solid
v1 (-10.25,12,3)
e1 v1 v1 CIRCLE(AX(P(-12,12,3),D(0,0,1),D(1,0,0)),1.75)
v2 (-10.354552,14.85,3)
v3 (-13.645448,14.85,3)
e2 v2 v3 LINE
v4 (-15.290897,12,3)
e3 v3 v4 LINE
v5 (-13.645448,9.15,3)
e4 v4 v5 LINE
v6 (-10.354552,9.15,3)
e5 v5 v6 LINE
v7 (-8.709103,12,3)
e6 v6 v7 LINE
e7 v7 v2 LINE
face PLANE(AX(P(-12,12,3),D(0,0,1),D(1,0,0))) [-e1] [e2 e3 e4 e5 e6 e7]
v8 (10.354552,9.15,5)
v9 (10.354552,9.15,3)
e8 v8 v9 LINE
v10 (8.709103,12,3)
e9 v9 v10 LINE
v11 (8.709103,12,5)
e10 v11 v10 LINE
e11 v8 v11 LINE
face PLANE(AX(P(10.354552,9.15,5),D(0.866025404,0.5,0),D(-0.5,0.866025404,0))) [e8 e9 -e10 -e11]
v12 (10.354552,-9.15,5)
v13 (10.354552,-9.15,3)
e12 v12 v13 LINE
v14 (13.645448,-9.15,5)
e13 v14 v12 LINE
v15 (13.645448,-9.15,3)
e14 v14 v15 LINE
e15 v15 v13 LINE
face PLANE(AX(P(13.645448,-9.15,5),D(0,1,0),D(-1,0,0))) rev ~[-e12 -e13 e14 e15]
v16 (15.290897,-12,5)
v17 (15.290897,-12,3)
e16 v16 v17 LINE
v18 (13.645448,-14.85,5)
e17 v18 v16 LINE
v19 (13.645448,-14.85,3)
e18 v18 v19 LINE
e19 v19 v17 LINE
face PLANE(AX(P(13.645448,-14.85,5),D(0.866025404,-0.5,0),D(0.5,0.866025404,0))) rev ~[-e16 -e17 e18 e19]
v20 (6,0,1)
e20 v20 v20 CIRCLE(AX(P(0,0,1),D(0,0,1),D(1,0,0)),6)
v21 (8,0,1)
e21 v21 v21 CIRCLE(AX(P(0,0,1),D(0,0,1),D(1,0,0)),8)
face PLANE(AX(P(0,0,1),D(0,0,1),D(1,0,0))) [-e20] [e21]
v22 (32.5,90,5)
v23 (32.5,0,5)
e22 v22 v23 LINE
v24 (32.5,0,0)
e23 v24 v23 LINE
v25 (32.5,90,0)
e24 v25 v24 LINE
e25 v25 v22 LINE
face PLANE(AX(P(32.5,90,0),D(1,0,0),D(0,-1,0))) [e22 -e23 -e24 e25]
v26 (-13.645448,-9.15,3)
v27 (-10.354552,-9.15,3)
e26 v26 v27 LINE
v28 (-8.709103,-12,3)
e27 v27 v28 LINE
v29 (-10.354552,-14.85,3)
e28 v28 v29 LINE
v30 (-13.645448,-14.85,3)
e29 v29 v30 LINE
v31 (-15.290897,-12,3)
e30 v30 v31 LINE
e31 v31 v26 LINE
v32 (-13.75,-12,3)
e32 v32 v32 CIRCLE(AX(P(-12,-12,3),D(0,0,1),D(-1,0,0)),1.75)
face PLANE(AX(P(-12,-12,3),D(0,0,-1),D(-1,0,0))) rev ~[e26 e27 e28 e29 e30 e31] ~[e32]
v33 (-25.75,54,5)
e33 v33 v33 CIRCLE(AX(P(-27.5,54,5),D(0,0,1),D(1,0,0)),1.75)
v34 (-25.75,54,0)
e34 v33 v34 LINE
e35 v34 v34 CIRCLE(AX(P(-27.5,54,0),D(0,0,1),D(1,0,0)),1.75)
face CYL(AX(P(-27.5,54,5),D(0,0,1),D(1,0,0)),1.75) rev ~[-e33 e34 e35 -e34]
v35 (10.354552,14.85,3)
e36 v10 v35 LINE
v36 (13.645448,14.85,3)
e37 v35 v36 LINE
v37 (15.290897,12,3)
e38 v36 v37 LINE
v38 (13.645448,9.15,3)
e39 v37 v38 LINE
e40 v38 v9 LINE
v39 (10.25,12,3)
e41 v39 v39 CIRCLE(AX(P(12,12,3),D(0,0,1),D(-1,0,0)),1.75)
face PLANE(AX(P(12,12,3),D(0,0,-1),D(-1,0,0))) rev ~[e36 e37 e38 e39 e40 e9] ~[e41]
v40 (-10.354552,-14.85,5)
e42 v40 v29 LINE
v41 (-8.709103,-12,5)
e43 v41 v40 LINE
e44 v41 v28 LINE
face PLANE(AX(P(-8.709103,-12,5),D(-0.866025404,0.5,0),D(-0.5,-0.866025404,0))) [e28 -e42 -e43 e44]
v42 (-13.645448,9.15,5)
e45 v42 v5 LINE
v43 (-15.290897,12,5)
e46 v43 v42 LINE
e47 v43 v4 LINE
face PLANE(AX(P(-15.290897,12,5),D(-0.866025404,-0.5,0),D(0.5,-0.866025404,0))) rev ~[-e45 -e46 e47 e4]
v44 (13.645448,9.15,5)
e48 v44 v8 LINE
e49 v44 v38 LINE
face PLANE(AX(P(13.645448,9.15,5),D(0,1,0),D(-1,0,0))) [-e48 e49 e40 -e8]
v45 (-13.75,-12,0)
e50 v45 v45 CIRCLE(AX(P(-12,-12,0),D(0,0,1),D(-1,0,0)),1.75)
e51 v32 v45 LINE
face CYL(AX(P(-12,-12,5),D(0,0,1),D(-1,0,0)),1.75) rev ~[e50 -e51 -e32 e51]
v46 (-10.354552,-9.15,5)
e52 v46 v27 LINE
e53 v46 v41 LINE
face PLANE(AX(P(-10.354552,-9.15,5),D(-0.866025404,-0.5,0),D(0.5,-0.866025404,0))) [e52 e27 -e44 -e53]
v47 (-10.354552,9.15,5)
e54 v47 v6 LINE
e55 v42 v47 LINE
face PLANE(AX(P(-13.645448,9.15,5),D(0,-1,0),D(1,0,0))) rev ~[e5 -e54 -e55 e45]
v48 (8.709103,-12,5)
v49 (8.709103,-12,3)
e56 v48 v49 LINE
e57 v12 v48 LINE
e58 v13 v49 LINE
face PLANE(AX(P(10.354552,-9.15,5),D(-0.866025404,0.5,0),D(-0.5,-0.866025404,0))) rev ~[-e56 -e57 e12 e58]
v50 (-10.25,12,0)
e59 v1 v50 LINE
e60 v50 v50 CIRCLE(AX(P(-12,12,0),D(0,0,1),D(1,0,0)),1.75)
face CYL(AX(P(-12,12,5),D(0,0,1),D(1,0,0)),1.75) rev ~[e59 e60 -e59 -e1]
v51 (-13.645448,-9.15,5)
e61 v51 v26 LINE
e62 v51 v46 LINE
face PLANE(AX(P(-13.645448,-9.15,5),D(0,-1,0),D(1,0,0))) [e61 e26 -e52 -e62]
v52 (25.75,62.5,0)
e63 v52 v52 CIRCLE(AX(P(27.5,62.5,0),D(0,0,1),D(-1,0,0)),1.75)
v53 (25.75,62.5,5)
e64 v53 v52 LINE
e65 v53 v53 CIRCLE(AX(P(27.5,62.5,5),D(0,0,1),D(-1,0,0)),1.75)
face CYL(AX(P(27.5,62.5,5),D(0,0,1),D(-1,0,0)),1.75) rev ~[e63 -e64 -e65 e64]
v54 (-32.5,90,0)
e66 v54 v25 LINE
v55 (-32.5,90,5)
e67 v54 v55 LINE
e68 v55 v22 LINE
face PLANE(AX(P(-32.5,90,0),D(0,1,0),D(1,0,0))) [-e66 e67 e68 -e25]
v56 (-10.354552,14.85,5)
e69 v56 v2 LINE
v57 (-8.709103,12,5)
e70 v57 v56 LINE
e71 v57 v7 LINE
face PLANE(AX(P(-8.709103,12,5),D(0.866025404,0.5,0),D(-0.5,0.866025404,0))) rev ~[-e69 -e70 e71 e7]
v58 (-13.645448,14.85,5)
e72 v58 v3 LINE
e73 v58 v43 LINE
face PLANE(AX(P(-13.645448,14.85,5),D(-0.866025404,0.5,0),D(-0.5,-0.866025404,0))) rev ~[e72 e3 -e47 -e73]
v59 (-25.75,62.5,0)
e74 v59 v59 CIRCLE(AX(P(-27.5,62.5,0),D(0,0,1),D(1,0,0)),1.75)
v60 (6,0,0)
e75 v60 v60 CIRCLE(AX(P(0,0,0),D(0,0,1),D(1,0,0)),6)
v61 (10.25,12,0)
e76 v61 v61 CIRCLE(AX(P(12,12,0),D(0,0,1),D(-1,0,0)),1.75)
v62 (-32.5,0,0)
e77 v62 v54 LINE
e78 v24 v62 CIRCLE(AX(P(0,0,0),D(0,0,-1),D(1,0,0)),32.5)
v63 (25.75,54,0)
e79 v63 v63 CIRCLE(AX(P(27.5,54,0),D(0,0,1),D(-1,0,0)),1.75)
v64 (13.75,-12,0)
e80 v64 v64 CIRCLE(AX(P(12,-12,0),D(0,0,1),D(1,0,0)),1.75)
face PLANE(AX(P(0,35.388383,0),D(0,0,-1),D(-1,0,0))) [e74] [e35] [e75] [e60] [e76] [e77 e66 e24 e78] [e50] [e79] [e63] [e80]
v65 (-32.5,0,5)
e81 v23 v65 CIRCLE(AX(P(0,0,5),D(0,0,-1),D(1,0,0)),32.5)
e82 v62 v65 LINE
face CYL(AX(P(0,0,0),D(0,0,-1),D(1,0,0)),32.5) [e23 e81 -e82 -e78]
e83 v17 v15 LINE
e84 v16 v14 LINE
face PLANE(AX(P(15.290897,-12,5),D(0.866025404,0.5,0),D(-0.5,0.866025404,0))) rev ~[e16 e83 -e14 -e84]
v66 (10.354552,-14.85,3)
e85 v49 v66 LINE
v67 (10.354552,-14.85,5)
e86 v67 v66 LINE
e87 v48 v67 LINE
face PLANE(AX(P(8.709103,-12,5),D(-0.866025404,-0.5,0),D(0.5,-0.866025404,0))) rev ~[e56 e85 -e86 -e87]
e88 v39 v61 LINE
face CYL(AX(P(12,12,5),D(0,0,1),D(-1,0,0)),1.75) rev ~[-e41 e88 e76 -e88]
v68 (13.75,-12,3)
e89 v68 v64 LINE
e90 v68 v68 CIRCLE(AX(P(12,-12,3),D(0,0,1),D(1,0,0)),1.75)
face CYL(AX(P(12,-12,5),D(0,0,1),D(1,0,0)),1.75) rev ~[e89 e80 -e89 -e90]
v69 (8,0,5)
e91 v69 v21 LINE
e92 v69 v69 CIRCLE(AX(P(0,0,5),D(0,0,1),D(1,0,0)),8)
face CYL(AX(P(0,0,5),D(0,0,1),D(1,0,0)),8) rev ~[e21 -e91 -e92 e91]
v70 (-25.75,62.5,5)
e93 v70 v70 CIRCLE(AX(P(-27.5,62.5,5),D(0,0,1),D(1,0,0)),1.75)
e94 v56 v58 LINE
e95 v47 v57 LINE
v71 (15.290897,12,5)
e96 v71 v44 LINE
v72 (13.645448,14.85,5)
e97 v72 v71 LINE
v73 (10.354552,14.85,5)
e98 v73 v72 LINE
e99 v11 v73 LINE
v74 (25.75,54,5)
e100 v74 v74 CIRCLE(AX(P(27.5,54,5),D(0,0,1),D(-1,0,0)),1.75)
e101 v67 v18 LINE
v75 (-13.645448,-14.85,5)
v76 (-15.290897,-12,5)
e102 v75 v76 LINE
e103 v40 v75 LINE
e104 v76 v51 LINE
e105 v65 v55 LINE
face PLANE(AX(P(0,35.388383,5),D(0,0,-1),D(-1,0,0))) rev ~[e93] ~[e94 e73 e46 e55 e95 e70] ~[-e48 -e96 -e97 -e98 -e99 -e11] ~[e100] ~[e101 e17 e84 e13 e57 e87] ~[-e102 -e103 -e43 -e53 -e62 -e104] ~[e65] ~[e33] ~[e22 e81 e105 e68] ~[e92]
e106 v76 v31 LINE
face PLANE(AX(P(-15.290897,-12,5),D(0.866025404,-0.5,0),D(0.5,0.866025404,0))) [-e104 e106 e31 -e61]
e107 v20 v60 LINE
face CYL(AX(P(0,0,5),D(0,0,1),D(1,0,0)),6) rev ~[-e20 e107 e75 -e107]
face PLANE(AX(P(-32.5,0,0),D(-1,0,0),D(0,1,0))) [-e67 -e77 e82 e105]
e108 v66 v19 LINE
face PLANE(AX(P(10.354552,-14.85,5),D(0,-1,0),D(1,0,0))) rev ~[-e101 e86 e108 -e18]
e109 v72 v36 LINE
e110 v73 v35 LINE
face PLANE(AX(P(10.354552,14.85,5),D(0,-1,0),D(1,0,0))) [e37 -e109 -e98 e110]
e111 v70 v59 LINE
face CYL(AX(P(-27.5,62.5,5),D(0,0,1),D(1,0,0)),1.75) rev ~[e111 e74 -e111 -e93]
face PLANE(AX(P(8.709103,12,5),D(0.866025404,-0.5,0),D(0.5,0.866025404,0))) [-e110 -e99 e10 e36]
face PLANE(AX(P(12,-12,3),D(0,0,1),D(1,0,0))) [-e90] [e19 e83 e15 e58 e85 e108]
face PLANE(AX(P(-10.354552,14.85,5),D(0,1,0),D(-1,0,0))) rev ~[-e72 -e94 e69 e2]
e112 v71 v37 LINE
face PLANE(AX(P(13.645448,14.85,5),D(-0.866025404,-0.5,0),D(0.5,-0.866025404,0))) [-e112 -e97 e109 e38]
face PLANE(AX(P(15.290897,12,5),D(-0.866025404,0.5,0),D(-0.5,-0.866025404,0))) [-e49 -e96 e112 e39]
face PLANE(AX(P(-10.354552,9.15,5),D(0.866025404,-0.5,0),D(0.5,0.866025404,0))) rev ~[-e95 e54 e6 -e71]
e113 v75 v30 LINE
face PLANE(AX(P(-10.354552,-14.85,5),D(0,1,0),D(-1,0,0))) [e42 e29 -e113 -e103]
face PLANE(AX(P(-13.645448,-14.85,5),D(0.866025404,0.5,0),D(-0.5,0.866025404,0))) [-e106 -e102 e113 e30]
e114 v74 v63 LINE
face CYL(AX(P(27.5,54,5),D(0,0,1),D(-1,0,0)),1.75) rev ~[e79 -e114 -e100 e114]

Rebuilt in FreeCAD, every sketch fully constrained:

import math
import FreeCAD as App
import Part
import Sketcher
from FreeCAD import Vector
Q = App.Units.Quantity

doc = App.newDocument("Part")
body = doc.addObject("PartDesign::Body", "Body")

sketch1 = doc.addObject("Sketcher::SketchObject", "Sketch")
body.addObject(sketch1)
sketch1.AttachmentSupport = (doc.XY_Plane, [""])
sketch1.MapMode = "FlatFace"
sketch1.addGeometry([
    Part.LineSegment(Vector(-32, 90, 0), Vector(-32, 0, 0)),
    Part.ArcOfCircle(Part.Circle(Vector(0, 0, 0), Vector(0, 0, 1), 32), math.radians(180), math.radians(360)),
    Part.LineSegment(Vector(32, 0, 0), Vector(32, 90, 0)),
    Part.LineSegment(Vector(32, 90, 0), Vector(-32, 90, 0)),
], False)
sketch1.addConstraint([
    Sketcher.Constraint("Tangent", 0, 2, 1, 1),
    Sketcher.Constraint("Tangent", 1, 2, 2, 1),
    Sketcher.Constraint("Coincident", 2, 2, 3, 1),
    Sketcher.Constraint("Coincident", 3, 2, 0, 1),
    Sketcher.Constraint("Vertical", 0),
    Sketcher.Constraint("Vertical", 2),
    Sketcher.Constraint("Horizontal", 3),
    Sketcher.Constraint("Coincident", 1, 3, -1, 1),
    Sketcher.Constraint("Radius", 1, Q("32.5 mm")),
    Sketcher.Constraint("DistanceY", 0, 2, 0, 1, Q("90 mm")),
])
pad1 = doc.addObject("PartDesign::Pad", "Pad")
body.addObject(pad1)
pad1.Profile = sketch1
pad1.Length = 5

sketch2 = doc.addObject("Sketcher::SketchObject", "Sketch001")
body.addObject(sketch2)
sketch2.AttachmentSupport = (doc.XY_Plane, [""])
sketch2.MapMode = "FlatFace"
sketch2.AttachmentOffset = App.Placement(Vector(0, 0, 5), App.Rotation())
sketch2.addGeometry(Part.Circle(Vector(0, 0, 0), Vector(0, 0, 1), 6), False)
sketch2.addConstraint([
    Sketcher.Constraint("Coincident", 0, 3, -1, 1),
    Sketcher.Constraint("Diameter", 0, Q("12 mm")),
])
pocket1 = doc.addObject("PartDesign::Pocket", "Pocket")
body.addObject(pocket1)
pocket1.Profile = sketch2
pocket1.Type = "ThroughAll"

sketch3 = doc.addObject("Sketcher::SketchObject", "Sketch002")
body.addObject(sketch3)
sketch3.AttachmentSupport = (doc.XY_Plane, [""])
sketch3.MapMode = "FlatFace"
sketch3.AttachmentOffset = App.Placement(Vector(0, 0, 5), App.Rotation())
sketch3.addGeometry(Part.Circle(Vector(0, 0, 0), Vector(0, 0, 1), 8), False)
sketch3.addConstraint([
    Sketcher.Constraint("Coincident", 0, 3, -1, 1),
    Sketcher.Constraint("Diameter", 0, Q("16 mm")),
])
pocket2 = doc.addObject("PartDesign::Pocket", "Pocket001")
body.addObject(pocket2)
pocket2.Profile = sketch3
pocket2.Length = 4

sketch4 = doc.addObject("Sketcher::SketchObject", "Sketch003")
body.addObject(sketch4)
sketch4.AttachmentSupport = (doc.XY_Plane, [""])
sketch4.MapMode = "FlatFace"
sketch4.AttachmentOffset = App.Placement(Vector(0, 0, 5), App.Rotation())
sketch4.addGeometry([
    Part.Circle(Vector(-12, 12, 0), Vector(0, 0, 1), 1.8),
    Part.Circle(Vector(12, 12, 0), Vector(0, 0, 1), 1.8),
    Part.Circle(Vector(12, -12, 0), Vector(0, 0, 1), 1.8),
    Part.Circle(Vector(-12, -12, 0), Vector(0, 0, 1), 1.8),
], False)
sketch4.addConstraint([
    Sketcher.Constraint("Equal", 0, 1),
    Sketcher.Constraint("Equal", 1, 2),
    Sketcher.Constraint("Equal", 2, 3),
    Sketcher.Constraint("Symmetric", 0, 3, 2, 3, -1, 1),
    Sketcher.Constraint("Symmetric", 1, 3, 3, 3, -1, 1),
    Sketcher.Constraint("Symmetric", 0, 3, 1, 3, -2),
    Sketcher.Constraint("Diameter", 0, Q("3.5 mm")),
    Sketcher.Constraint("DistanceX", 0, 3, -1, 1, Q("12 mm")),
    Sketcher.Constraint("DistanceY", -1, 1, 0, 3, Q("12 mm")),
])
pocket3 = doc.addObject("PartDesign::Pocket", "Pocket002")
body.addObject(pocket3)
pocket3.Profile = sketch4
pocket3.Type = "ThroughAll"

sketch5 = doc.addObject("Sketcher::SketchObject", "Sketch004")
body.addObject(sketch5)
sketch5.AttachmentSupport = (doc.XY_Plane, [""])
sketch5.MapMode = "FlatFace"
sketch5.AttachmentOffset = App.Placement(Vector(0, 0, 5), App.Rotation())
sketch5.addGeometry([
    Part.LineSegment(Vector(-8.7, 12, 0), Vector(-10.4, 14.8, 0)),
    Part.LineSegment(Vector(-10.4, 14.8, 0), Vector(-13.6, 14.8, 0)),
    Part.LineSegment(Vector(-13.6, 14.8, 0), Vector(-15.3, 12, 0)),
    Part.LineSegment(Vector(-15.3, 12, 0), Vector(-13.6, 9.2, 0)),
    Part.LineSegment(Vector(-13.6, 9.2, 0), Vector(-10.4, 9.2, 0)),
    Part.LineSegment(Vector(-10.4, 9.2, 0), Vector(-8.7, 12, 0)),
    Part.LineSegment(Vector(8.7, 12, 0), Vector(10.4, 9.2, 0)),
    Part.LineSegment(Vector(10.4, 9.2, 0), Vector(13.6, 9.2, 0)),
    Part.LineSegment(Vector(13.6, 9.2, 0), Vector(15.3, 12, 0)),
    Part.LineSegment(Vector(15.3, 12, 0), Vector(13.6, 14.8, 0)),
    Part.LineSegment(Vector(13.6, 14.8, 0), Vector(10.4, 14.8, 0)),
    Part.LineSegment(Vector(10.4, 14.8, 0), Vector(8.7, 12, 0)),
    Part.LineSegment(Vector(8.7, -12, 0), Vector(10.4, -14.8, 0)),
    Part.LineSegment(Vector(10.4, -14.8, 0), Vector(13.6, -14.8, 0)),
    Part.LineSegment(Vector(13.6, -14.8, 0), Vector(15.3, -12, 0)),
    Part.LineSegment(Vector(15.3, -12, 0), Vector(13.6, -9.2, 0)),
    Part.LineSegment(Vector(13.6, -9.2, 0), Vector(10.4, -9.2, 0)),
    Part.LineSegment(Vector(10.4, -9.2, 0), Vector(8.7, -12, 0)),
    Part.LineSegment(Vector(-8.7, -12, 0), Vector(-10.4, -9.2, 0)),
    Part.LineSegment(Vector(-10.4, -9.2, 0), Vector(-13.6, -9.2, 0)),
    Part.LineSegment(Vector(-13.6, -9.2, 0), Vector(-15.3, -12, 0)),
    Part.LineSegment(Vector(-15.3, -12, 0), Vector(-13.6, -14.8, 0)),
    Part.LineSegment(Vector(-13.6, -14.8, 0), Vector(-10.4, -14.8, 0)),
    Part.LineSegment(Vector(-10.4, -14.8, 0), Vector(-8.7, -12, 0)),
], False)
sketch5.addConstraint([
    Sketcher.Constraint("Coincident", 0, 2, 1, 1),
    Sketcher.Constraint("Coincident", 1, 2, 2, 1),
    Sketcher.Constraint("Coincident", 2, 2, 3, 1),
    Sketcher.Constraint("Coincident", 3, 2, 4, 1),
    Sketcher.Constraint("Coincident", 4, 2, 5, 1),
    Sketcher.Constraint("Coincident", 5, 2, 0, 1),
    Sketcher.Constraint("Coincident", 6, 2, 7, 1),
    Sketcher.Constraint("Coincident", 7, 2, 8, 1),
    Sketcher.Constraint("Coincident", 8, 2, 9, 1),
    Sketcher.Constraint("Coincident", 9, 2, 10, 1),
    Sketcher.Constraint("Coincident", 10, 2, 11, 1),
    Sketcher.Constraint("Coincident", 11, 2, 6, 1),
    Sketcher.Constraint("Coincident", 12, 2, 13, 1),
    Sketcher.Constraint("Coincident", 13, 2, 14, 1),
    Sketcher.Constraint("Coincident", 14, 2, 15, 1),
    Sketcher.Constraint("Coincident", 15, 2, 16, 1),
    Sketcher.Constraint("Coincident", 16, 2, 17, 1),
    Sketcher.Constraint("Coincident", 17, 2, 12, 1),
    Sketcher.Constraint("Coincident", 18, 2, 19, 1),
    Sketcher.Constraint("Coincident", 19, 2, 20, 1),
    Sketcher.Constraint("Coincident", 20, 2, 21, 1),
    Sketcher.Constraint("Coincident", 21, 2, 22, 1),
    Sketcher.Constraint("Coincident", 22, 2, 23, 1),
    Sketcher.Constraint("Coincident", 23, 2, 18, 1),
    Sketcher.Constraint("Horizontal", 1),
    Sketcher.Constraint("Horizontal", 4),
    Sketcher.Constraint("Horizontal", 7),
    Sketcher.Constraint("Horizontal", 10),
    Sketcher.Constraint("Horizontal", 13),
    Sketcher.Constraint("Horizontal", 16),
    Sketcher.Constraint("Horizontal", 19),
    Sketcher.Constraint("Horizontal", 22),
    Sketcher.Constraint("Symmetric", 0, 2, 12, 2, -1, 1),
    Sketcher.Constraint("Symmetric", 2, 2, 14, 2, -1, 1),
    Sketcher.Constraint("Symmetric", 3, 2, 15, 2, -1, 1),
    Sketcher.Constraint("Symmetric", 5, 2, 17, 2, -1, 1),
    Sketcher.Constraint("Symmetric", 6, 2, 18, 2, -1, 1),
    Sketcher.Constraint("Symmetric", 8, 2, 20, 2, -1, 1),
    Sketcher.Constraint("Symmetric", 9, 2, 21, 2, -1, 1),
    Sketcher.Constraint("Symmetric", 11, 2, 23, 2, -1, 1),
    Sketcher.Constraint("Symmetric", 4, 2, 6, 2, -2),
    Sketcher.Constraint("Symmetric", 2, 2, 8, 2, -2),
    Sketcher.Constraint("Symmetric", 1, 2, 9, 2, -2),
    Sketcher.Constraint("Symmetric", 5, 2, 11, 2, -2),
    Sketcher.Constraint("Parallel", 0, 3),
    Sketcher.Constraint("Parallel", 2, 5),
    Sketcher.Constraint("Parallel", 3, 6),
    Sketcher.Constraint("Parallel", 5, 8),
    Sketcher.Constraint("Parallel", 8, 11),
    Sketcher.Constraint("Parallel", 11, 14),
    Sketcher.Constraint("Parallel", 14, 17),
    Sketcher.Constraint("Parallel", 17, 20),
    Sketcher.Constraint("Parallel", 20, 23),
    Sketcher.Constraint("Horizontal", 2, 2, 5, 2),
    Sketcher.Constraint("Vertical", 1, 2, 3, 2),
    Sketcher.Constraint("Angle", 0, Q("120 deg")),
    Sketcher.Constraint("DistanceY", -1, 1, 2, 2, Q("12 mm")),
    Sketcher.Constraint("DistanceX", 3, 2, 6, 2, Q("24 mm")),
    Sketcher.Constraint("DistanceY", 3, 2, 1, 2, Q("5.7 mm")),
    Sketcher.Constraint("DistanceX", 1, 2, 1, 1, Q("3.290897 mm")),
])
pocket4 = doc.addObject("PartDesign::Pocket", "Pocket003")
body.addObject(pocket4)
pocket4.Profile = sketch5
pocket4.Length = 2

sketch6 = doc.addObject("Sketcher::SketchObject", "Sketch005")
body.addObject(sketch6)
sketch6.AttachmentSupport = (doc.XY_Plane, [""])
sketch6.MapMode = "FlatFace"
sketch6.AttachmentOffset = App.Placement(Vector(0, 0, 5), App.Rotation())
sketch6.addGeometry([
    Part.Circle(Vector(-27.5, 62.5, 0), Vector(0, 0, 1), 1.8),
    Part.Circle(Vector(-27.5, 54, 0), Vector(0, 0, 1), 1.8),
    Part.Circle(Vector(27.5, 54, 0), Vector(0, 0, 1), 1.8),
    Part.Circle(Vector(27.5, 62.5, 0), Vector(0, 0, 1), 1.8),
], False)
sketch6.addConstraint([
    Sketcher.Constraint("Equal", 0, 1),
    Sketcher.Constraint("Equal", 1, 2),
    Sketcher.Constraint("Equal", 2, 3),
    Sketcher.Constraint("Symmetric", 1, 3, 2, 3, -2),
    Sketcher.Constraint("Symmetric", 0, 3, 3, 3, -2),
    Sketcher.Constraint("Vertical", 0, 3, 1, 3),
    Sketcher.Constraint("Diameter", 0, Q("3.5 mm")),
    Sketcher.Constraint("DistanceY", -1, 1, 1, 3, Q("54 mm")),
    Sketcher.Constraint("DistanceX", 1, 3, 2, 3, Q("55 mm")),
    Sketcher.Constraint("DistanceY", -1, 1, 0, 3, Q("62.5 mm")),
])
pocket5 = doc.addObject("PartDesign::Pocket", "Pocket004")
body.addObject(pocket5)
pocket5.Profile = sketch6
pocket5.Type = "ThroughAll"

doc.recompute()
